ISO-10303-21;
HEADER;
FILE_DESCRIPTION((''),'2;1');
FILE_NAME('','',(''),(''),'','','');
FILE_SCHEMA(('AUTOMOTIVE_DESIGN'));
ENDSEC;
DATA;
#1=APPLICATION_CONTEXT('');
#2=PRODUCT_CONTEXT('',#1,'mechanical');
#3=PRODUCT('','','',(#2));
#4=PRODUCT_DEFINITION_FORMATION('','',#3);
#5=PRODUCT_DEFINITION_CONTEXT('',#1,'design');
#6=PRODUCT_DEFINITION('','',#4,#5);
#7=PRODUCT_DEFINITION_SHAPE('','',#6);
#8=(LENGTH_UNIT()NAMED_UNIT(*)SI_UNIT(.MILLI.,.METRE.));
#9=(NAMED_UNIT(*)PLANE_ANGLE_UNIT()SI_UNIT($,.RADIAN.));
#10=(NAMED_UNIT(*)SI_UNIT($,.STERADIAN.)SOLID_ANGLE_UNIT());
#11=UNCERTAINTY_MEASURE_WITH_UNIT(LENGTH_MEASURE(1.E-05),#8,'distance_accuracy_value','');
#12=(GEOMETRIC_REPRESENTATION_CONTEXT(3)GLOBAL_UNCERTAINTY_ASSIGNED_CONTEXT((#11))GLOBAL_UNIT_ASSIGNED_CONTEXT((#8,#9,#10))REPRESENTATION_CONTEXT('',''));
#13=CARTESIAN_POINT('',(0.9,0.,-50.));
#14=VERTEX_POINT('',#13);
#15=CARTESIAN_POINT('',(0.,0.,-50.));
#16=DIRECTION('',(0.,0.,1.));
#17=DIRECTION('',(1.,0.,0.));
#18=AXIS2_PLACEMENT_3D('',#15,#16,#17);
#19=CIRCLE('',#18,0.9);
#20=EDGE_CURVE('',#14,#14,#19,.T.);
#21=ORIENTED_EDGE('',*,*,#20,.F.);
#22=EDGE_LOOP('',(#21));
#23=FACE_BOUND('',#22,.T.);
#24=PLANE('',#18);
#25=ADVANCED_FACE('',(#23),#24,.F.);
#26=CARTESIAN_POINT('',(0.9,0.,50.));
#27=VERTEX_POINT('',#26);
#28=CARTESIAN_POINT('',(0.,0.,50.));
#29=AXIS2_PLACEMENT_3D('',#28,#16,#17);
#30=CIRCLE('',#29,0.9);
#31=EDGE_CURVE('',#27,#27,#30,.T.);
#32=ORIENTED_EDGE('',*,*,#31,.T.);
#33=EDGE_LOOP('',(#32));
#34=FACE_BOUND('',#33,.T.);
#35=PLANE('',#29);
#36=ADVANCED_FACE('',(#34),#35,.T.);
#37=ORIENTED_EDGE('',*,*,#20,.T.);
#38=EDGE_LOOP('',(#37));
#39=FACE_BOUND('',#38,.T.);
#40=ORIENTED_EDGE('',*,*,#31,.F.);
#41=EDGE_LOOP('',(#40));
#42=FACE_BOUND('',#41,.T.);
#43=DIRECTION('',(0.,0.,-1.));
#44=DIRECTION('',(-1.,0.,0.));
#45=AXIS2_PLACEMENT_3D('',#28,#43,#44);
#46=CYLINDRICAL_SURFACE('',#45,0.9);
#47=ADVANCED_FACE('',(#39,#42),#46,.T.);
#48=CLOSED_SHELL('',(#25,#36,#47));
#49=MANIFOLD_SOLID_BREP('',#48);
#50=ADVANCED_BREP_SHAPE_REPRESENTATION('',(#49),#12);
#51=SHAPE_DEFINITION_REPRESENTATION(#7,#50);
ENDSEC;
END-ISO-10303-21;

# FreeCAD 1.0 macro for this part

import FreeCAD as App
import Part
import Sketcher

V = App.Vector

doc = App.newDocument("Part")
body = doc.addObject("PartDesign::Body", "Body")

# Sketch on XY plane
sketch1 = body.newObject("Sketcher::SketchObject", "Sketch")
sketch1.AttachmentSupport = (doc.getObject("XY_Plane"), [""])
sketch1.MapMode = "FlatFace"
sketch1.addGeometry(Part.Circle(V(0, 0, 0), V(0, 0, 1), 0.9), False)
sketch1.addConstraint([
    Sketcher.Constraint("Coincident", 0, 3, -1, 1),
    Sketcher.Constraint("Diameter", 0, 1.8),
])
pad1 = body.newObject("PartDesign::Pad", "Pad")
pad1.Profile = sketch1
pad1.Length = 100
pad1.Midplane = True

doc.recompute()
